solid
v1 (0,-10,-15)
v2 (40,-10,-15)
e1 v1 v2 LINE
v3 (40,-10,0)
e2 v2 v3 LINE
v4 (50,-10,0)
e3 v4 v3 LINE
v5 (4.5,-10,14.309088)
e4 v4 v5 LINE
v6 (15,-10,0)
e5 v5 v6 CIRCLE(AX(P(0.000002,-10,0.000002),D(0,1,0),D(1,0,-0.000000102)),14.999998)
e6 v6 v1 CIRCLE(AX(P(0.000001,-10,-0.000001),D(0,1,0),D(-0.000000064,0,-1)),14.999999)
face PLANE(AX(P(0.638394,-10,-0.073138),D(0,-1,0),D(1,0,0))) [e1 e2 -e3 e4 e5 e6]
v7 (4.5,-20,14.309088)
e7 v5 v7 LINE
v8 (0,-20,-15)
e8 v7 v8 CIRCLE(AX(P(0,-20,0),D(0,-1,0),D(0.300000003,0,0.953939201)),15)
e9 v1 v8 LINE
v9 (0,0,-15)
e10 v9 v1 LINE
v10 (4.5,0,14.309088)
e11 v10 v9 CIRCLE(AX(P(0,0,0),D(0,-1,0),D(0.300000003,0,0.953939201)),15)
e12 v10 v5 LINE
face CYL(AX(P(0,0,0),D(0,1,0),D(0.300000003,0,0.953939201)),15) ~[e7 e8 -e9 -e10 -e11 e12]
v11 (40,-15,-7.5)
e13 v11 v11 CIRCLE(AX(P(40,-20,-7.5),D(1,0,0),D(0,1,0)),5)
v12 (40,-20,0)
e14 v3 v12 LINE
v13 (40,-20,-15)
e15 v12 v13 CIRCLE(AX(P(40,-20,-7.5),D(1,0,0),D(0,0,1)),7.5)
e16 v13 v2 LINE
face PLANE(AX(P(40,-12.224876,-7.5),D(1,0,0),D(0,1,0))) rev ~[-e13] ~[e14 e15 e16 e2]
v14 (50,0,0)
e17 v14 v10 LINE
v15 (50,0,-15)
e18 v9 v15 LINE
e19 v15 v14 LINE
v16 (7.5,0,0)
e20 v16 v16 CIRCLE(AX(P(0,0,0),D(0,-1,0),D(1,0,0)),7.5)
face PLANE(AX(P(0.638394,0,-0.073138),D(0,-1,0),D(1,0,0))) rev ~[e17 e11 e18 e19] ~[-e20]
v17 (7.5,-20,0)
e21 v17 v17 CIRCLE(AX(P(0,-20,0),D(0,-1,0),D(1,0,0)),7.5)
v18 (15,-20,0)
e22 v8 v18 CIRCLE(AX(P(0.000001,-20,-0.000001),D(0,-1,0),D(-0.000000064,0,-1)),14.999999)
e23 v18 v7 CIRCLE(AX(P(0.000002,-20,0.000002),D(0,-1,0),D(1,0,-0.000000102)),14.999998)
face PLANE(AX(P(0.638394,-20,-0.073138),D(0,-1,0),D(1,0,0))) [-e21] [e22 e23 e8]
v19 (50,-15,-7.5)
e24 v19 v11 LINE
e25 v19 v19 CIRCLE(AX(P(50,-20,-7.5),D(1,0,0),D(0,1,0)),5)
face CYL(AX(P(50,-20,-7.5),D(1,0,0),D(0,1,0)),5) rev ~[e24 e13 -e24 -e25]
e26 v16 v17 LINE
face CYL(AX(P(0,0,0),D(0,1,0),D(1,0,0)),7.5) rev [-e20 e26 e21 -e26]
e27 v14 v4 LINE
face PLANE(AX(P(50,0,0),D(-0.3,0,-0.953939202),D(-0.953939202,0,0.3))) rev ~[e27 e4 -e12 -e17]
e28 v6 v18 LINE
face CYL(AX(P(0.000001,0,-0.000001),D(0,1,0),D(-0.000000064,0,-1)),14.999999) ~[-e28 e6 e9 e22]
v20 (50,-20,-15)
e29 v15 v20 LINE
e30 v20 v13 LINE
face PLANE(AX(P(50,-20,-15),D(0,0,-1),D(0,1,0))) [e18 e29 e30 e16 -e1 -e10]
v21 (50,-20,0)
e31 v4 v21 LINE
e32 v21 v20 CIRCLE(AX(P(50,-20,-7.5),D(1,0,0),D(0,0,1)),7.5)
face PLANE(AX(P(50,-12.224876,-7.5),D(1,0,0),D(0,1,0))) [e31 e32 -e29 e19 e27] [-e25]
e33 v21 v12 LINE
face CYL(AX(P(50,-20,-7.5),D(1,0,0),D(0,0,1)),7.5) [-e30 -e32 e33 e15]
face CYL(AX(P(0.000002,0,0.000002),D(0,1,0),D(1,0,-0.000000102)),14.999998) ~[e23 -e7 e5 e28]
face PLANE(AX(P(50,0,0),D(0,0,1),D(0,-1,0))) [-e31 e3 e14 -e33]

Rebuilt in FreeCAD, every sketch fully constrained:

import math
import FreeCAD as App
import Part
import Sketcher

V = App.Vector
Q = App.Units.Quantity

doc = App.newDocument("Part")
body = doc.addObject("PartDesign::Body", "Body")

sketch1 = body.newObject("Sketcher::SketchObject", "Sketch")
sketch1.AttachmentSupport = (doc.getObject("XZ_Plane"), [""])
sketch1.MapMode = "FlatFace"
sketch1.addGeometry(Part.ArcOfCircle(Part.Circle(V(0, 0, 0), V(0, 0, 1), 15), math.radians(73), math.radians(270)), False)
sketch1.addGeometry(Part.LineSegment(V(0, -15, 0), V(50, -15, 0)), False)
sketch1.addGeometry(Part.LineSegment(V(50, -15, 0), V(50, 0, 0)), False)
sketch1.addGeometry(Part.LineSegment(V(50, 0, 0), V(4, 14, 0)), False)
sketch1.addGeometry(Part.Circle(V(0, 0, 0), V(0, 0, 1), 8), False)
sketch1.addConstraint(Sketcher.Constraint("Tangent", 0, 2, 1, 1))
sketch1.addConstraint(Sketcher.Constraint("Coincident", 1, 2, 2, 1))
sketch1.addConstraint(Sketcher.Constraint("Coincident", 2, 2, 3, 1))
sketch1.addConstraint(Sketcher.Constraint("Tangent", 3, 2, 0, 1))
sketch1.addConstraint(Sketcher.Constraint("Horizontal", 1))
sketch1.addConstraint(Sketcher.Constraint("Vertical", 2))
sketch1.addConstraint(Sketcher.Constraint("Coincident", 0, 3, -1, 1))
sketch1.addConstraint(Sketcher.Constraint("Coincident", 4, 3, -1, 1))
sketch1.addConstraint(Sketcher.Constraint("PointOnObject", 2, 2, -1))
sketch1.addConstraint(Sketcher.Constraint("Diameter", 4, Q("15 mm")))
sketch1.addConstraint(Sketcher.Constraint("Radius", 0, Q("15 mm")))
sketch1.addConstraint(Sketcher.Constraint("DistanceX", 1, 1, 1, 2, Q("50 mm")))
pad1 = body.newObject("PartDesign::Pad", "Pad")
pad1.Profile = sketch1
pad1.Length = 10

sketch2 = body.newObject("Sketcher::SketchObject", "Sketch001")
sketch2.AttachmentSupport = (doc.getObject("XZ_Plane"), [""])
sketch2.MapMode = "FlatFace"
sketch2.addGeometry(Part.ArcOfCircle(Part.Circle(V(0, 0, 0), V(0, 0, 1), 15), math.radians(-90), math.radians(0)), False)
sketch2.addGeometry(Part.ArcOfCircle(Part.Circle(V(0, 0, 0), V(0, 0, 1), 15), math.radians(0), math.radians(73)), False)
sketch2.addGeometry(Part.ArcOfCircle(Part.Circle(V(0, 0, 0), V(0, 0, 1), 15), math.radians(73), math.radians(270)), False)
sketch2.addGeometry(Part.Circle(V(0, 0, 0), V(0, 0, 1), 8), False)
sketch2.addConstraint(Sketcher.Constraint("Tangent", 0, 2, 1, 1))
sketch2.addConstraint(Sketcher.Constraint("Tangent", 1, 2, 2, 1))
sketch2.addConstraint(Sketcher.Constraint("Tangent", 2, 2, 0, 1))
sketch2.addConstraint(Sketcher.Constraint("Coincident", 0, 3, -1, 1))
sketch2.addConstraint(Sketcher.Constraint("Coincident", 3, 3, -1, 1))
sketch2.addConstraint(Sketcher.Constraint("PointOnObject", 0, 2, -1))
sketch2.addConstraint(Sketcher.Constraint("PointOnObject", 2, 2, -2))
sketch2.addConstraint(Sketcher.Constraint("Diameter", 3, Q("15 mm")))
sketch2.addConstraint(Sketcher.Constraint("Radius", 0, Q("14.999999 mm")))
sketch2.addConstraint(Sketcher.Constraint("DistanceX", -1, 1, 1, 2, Q("4.5 mm")))
pad2 = body.newObject("PartDesign::Pad", "Pad001")
pad2.Profile = sketch2
pad2.Length = 20

sketch3 = body.newObject("Sketcher::SketchObject", "Sketch002")
sketch3.AttachmentSupport = (doc.getObject("YZ_Plane"), [""])
sketch3.MapMode = "FlatFace"
sketch3.AttachmentOffset = App.Placement(V(0, 0, 50), App.Rotation())
sketch3.addGeometry(Part.LineSegment(V(-20, -15, 0), V(0, -15, 0)), False)
sketch3.addGeometry(Part.LineSegment(V(0, -15, 0), V(0, 0, 0)), False)
sketch3.addGeometry(Part.LineSegment(V(0, 0, 0), V(-20, 0, 0)), False)
sketch3.addGeometry(Part.ArcOfCircle(Part.Circle(V(-20, -8, 0), V(0, 0, 1), 8), math.radians(90), math.radians(270)), False)
sketch3.addGeometry(Part.Circle(V(-20, -8, 0), V(0, 0, 1), 5), False)
sketch3.addConstraint(Sketcher.Constraint("Coincident", 0, 2, 1, 1))
sketch3.addConstraint(Sketcher.Constraint("Coincident", 1, 2, 2, 1))
sketch3.addConstraint(Sketcher.Constraint("Tangent", 2, 2, 3, 1))
sketch3.addConstraint(Sketcher.Constraint("Tangent", 3, 2, 0, 1))
sketch3.addConstraint(Sketcher.Constraint("Horizontal", 0))
sketch3.addConstraint(Sketcher.Constraint("Vertical", 1))
sketch3.addConstraint(Sketcher.Constraint("Horizontal", 2))
sketch3.addConstraint(Sketcher.Constraint("Coincident", 1, 2, -1, 1))
sketch3.addConstraint(Sketcher.Constraint("Coincident", 4, 3, 3, 3))
sketch3.addConstraint(Sketcher.Constraint("Diameter", 4, Q("10 mm")))
sketch3.addConstraint(Sketcher.Constraint("Radius", 3, Q("7.5 mm")))
sketch3.addConstraint(Sketcher.Constraint("DistanceX", 0, 1, 0, 2, Q("20 mm")))
pad3 = body.newObject("PartDesign::Pad", "Pad002")
pad3.Profile = sketch3
pad3.Length = 10
pad3.Reversed = True

doc.recompute()
